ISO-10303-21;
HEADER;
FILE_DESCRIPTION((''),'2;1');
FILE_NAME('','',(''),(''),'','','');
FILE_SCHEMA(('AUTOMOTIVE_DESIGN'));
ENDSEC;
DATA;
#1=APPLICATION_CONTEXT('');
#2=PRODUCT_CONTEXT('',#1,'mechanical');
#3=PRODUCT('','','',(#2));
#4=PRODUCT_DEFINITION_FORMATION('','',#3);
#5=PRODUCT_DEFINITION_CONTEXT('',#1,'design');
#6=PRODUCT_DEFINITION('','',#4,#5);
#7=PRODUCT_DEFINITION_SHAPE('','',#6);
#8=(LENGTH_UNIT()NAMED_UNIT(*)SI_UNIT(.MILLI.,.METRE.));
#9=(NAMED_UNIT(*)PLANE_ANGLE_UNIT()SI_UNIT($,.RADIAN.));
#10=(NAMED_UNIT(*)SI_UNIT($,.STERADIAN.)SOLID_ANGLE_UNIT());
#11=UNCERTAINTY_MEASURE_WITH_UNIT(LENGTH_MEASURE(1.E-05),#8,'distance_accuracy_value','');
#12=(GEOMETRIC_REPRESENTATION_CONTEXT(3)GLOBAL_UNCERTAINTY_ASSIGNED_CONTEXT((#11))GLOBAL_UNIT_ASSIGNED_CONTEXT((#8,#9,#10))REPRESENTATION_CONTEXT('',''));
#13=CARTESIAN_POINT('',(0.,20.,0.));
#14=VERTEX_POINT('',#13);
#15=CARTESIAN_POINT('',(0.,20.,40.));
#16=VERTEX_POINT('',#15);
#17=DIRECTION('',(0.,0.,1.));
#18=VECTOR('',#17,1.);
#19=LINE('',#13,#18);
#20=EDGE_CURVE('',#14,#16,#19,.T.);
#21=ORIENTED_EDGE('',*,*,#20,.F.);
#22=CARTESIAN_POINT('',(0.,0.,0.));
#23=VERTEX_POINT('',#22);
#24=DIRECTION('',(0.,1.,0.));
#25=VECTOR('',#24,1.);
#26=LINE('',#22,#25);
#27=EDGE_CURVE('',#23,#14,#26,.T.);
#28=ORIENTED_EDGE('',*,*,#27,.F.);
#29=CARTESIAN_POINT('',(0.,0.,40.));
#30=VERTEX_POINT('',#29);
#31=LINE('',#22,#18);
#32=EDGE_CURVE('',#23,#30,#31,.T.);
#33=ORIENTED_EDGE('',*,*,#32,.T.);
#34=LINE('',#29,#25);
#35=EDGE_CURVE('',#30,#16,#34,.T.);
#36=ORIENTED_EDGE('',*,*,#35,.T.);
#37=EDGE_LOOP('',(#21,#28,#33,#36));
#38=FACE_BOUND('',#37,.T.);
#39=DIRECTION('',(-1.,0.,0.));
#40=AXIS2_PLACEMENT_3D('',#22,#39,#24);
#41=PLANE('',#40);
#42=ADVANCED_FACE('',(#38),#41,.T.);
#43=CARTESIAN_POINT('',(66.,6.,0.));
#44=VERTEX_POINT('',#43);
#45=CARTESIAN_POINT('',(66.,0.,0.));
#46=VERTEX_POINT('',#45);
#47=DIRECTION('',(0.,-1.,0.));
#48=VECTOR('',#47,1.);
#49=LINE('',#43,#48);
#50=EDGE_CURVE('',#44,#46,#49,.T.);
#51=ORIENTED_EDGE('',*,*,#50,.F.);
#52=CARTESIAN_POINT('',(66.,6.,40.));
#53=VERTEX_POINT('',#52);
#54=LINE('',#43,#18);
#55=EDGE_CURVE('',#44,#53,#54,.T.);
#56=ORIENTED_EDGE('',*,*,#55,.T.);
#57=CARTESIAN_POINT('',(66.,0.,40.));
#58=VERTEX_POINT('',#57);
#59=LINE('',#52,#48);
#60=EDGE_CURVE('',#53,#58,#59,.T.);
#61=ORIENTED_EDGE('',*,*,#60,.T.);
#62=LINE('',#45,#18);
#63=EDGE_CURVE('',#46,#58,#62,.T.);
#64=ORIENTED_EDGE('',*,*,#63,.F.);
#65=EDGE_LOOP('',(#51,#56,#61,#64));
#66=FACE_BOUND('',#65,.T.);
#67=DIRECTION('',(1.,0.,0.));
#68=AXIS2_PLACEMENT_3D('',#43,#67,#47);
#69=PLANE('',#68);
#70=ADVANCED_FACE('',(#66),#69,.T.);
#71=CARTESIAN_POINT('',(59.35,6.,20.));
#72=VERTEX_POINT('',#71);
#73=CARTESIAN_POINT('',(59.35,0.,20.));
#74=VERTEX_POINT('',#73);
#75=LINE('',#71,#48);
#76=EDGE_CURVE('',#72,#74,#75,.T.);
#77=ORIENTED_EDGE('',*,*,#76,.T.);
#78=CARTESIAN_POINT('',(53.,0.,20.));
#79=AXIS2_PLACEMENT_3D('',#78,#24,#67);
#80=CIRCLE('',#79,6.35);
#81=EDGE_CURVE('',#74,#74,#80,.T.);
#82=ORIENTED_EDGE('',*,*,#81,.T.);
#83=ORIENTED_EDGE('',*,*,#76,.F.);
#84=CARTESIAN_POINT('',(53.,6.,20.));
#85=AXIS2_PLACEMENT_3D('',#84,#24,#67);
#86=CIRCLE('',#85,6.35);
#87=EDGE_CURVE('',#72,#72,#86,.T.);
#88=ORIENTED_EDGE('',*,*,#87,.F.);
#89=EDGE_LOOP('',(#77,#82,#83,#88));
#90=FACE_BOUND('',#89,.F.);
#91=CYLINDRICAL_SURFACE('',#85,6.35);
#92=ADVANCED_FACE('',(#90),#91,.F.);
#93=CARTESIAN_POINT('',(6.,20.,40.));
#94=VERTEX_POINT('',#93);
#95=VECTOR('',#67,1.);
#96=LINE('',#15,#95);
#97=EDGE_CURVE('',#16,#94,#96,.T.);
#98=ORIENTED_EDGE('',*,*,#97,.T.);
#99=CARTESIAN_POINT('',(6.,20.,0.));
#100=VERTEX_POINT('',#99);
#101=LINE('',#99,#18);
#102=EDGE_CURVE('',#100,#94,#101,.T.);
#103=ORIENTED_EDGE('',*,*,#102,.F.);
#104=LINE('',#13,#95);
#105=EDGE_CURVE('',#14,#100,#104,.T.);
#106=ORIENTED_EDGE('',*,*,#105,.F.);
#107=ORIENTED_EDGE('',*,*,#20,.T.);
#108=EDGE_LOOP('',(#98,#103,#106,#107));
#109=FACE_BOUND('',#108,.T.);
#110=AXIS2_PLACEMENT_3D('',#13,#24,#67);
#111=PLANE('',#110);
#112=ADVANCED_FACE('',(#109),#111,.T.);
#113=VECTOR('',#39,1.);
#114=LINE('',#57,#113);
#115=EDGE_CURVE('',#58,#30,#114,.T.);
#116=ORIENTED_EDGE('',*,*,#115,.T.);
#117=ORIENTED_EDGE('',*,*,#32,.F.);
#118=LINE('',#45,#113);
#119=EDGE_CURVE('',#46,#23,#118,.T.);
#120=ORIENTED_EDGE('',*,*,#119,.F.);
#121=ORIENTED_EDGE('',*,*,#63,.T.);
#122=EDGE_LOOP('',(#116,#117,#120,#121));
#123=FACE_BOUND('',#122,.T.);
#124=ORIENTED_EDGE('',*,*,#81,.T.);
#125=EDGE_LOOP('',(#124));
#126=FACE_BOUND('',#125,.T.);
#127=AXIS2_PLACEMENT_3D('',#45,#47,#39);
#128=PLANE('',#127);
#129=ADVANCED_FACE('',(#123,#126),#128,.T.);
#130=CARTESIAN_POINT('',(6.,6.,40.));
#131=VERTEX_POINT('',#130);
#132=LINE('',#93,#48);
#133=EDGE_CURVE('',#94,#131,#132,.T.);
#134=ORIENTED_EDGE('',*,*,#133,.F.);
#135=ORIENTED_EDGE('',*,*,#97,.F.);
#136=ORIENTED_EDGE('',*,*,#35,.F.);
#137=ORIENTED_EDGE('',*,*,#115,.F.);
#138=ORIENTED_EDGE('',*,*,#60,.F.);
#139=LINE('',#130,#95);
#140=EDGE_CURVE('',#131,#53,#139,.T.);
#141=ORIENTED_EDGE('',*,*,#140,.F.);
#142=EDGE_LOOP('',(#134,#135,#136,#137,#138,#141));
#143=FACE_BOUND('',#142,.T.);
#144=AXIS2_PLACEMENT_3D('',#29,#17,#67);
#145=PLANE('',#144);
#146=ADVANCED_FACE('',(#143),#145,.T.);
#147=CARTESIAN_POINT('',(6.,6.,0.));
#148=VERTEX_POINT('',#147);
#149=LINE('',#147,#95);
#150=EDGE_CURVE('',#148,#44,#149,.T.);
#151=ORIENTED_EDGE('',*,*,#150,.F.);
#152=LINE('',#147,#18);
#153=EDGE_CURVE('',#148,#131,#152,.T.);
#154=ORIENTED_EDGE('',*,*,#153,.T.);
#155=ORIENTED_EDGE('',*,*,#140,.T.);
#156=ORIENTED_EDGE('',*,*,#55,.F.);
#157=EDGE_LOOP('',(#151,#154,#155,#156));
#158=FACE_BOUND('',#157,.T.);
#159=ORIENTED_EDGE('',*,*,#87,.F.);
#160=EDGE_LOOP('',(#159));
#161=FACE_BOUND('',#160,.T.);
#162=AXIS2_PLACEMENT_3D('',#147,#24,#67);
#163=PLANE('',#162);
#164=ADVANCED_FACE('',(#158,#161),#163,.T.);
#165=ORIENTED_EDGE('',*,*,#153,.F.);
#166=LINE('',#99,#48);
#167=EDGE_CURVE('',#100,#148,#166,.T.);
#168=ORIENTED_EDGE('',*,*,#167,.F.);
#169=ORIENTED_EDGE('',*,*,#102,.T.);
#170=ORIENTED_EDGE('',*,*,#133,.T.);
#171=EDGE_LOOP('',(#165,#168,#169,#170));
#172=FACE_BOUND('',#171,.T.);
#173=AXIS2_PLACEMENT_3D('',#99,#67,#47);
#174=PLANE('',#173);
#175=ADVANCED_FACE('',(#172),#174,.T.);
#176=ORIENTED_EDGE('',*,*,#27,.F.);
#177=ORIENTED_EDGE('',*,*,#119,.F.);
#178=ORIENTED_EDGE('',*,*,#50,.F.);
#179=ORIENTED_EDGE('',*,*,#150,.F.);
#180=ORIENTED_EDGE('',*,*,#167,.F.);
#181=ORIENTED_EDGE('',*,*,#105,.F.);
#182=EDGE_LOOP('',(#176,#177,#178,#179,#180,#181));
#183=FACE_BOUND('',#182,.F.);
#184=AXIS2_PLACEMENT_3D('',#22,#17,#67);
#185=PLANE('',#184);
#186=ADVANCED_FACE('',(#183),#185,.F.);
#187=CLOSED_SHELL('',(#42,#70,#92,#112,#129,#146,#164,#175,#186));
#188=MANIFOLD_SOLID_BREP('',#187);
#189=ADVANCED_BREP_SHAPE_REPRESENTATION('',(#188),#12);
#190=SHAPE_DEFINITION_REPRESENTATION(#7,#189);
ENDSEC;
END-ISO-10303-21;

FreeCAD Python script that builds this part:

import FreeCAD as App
import Part
import Sketcher

V = App.Vector


def add_polygon(sketch, points):
    """Adds a closed chain of lines whose ends are joined by coincident constraints."""
    first, n = sketch.GeometryCount, len(points)
    for a, b in zip(points, points[1:] + points[:1]):
        sketch.addGeometry(Part.LineSegment(App.Vector(*a, 0), App.Vector(*b, 0)), False)
    for i in range(n):
        sketch.addConstraint(Sketcher.Constraint("Coincident", first + i, 2, first + (i + 1) % n, 1))

doc = App.newDocument("Part")
params = doc.addObject("Spreadsheet::Sheet", "Params")
for row, (alias, value) in enumerate([
    ("sketch1_width", "60 mm"),
    ("sketch1_width2", "6 mm"),
    ("sketch1_height", "20 mm"),
    ("pad1_length", "40 mm"),
    ("sketch2_diameter", "12.7 mm"),
    ("pocket1_length", "40 mm"),
], start=1):
    params.set(f"A{row}", alias)
    params.set(f"B{row}", "=" + value)
    params.setAlias(f"B{row}", alias)

body = doc.addObject("PartDesign::Body", "Body")

sketch1 = body.newObject("Sketcher::SketchObject", "Sketch")
sketch1.AttachmentSupport = (doc.getObject("XY_Plane"), [""])
sketch1.MapMode = "FlatFace"
add_polygon(sketch1, [(0, 20), (0, 0), (66, 0), (66, 6), (6, 6), (6, 20)])
sketch1.addConstraint(Sketcher.Constraint("Vertical", 0))
sketch1.addConstraint(Sketcher.Constraint("Horizontal", 1))
sketch1.addConstraint(Sketcher.Constraint("Vertical", 2))
sketch1.addConstraint(Sketcher.Constraint("Horizontal", 3))
sketch1.addConstraint(Sketcher.Constraint("Vertical", 4))
sketch1.addConstraint(Sketcher.Constraint("Horizontal", 5))
sketch1.addConstraint(Sketcher.Constraint("Coincident", 0, 2, -1, 1))
sketch1.addConstraint(Sketcher.Constraint("Equal", 5, 2))
sketch1.addConstraint(Sketcher.Constraint("DistanceX", 3, 2, 3, 1, 60.0))
sketch1.addConstraint(Sketcher.Constraint("DistanceX", 5, 2, 5, 1, 6.0))
sketch1.addConstraint(Sketcher.Constraint("DistanceY", 0, 2, 0, 1, 20.0))
sketch1.setExpression("Constraints[14]", "Params.sketch1_width")
sketch1.setExpression("Constraints[15]", "Params.sketch1_width2")
sketch1.setExpression("Constraints[16]", "Params.sketch1_height")
pad1 = body.newObject("PartDesign::Pad", "Pad")
pad1.Profile = sketch1
pad1.setExpression("Length", "Params.pad1_length")

sketch2 = body.newObject("Sketcher::SketchObject", "Sketch001")
sketch2.AttachmentSupport = (doc.getObject("XZ_Plane"), [""])
sketch2.MapMode = "FlatFace"
sketch2.AttachmentOffset = App.Placement(V(0, 0, -6), App.Rotation())
sketch2.addGeometry(Part.Circle(V(53, 20, 0), V(0, 0, 1), 6.35), False)
sketch2.addConstraint(Sketcher.Constraint("Diameter", 0, 12.7))
sketch2.addConstraint(Sketcher.Constraint("DistanceX", -1, 1, 0, 3, 53.0))
sketch2.addConstraint(Sketcher.Constraint("DistanceY", -1, 1, 0, 3, 20.0))
sketch2.setExpression("Constraints[0]", "Params.sketch2_diameter")
pocket1 = body.newObject("PartDesign::Pocket", "Pocket")
pocket1.Profile = sketch2
pocket1.setExpression("Length", "Params.pocket1_length")
pocket1.Reversed = True

doc.recompute()
